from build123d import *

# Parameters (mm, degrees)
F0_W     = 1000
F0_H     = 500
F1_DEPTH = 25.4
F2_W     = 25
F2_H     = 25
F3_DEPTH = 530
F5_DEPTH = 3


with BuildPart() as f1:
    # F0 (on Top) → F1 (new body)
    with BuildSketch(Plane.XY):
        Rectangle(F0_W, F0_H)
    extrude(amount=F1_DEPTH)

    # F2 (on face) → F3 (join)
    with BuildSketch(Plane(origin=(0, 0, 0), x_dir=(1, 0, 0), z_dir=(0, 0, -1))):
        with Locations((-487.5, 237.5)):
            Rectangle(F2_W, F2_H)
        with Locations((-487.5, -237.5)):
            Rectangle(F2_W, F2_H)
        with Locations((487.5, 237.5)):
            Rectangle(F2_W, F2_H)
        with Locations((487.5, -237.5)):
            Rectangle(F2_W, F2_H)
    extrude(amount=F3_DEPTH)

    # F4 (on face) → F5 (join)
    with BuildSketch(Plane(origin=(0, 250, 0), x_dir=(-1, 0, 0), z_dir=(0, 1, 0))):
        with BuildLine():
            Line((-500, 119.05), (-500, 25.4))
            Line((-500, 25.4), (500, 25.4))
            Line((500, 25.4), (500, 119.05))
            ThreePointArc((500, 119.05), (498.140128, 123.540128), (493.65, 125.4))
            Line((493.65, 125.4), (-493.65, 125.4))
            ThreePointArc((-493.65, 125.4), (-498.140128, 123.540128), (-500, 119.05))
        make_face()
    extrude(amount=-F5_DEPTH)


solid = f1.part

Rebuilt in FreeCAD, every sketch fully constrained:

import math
import FreeCAD as App
import Part
import Sketcher

doc = App.newDocument("Part")
body = doc.addObject("PartDesign::Body", "Body")

# Sketch on XY plane
sketch1 = body.newObject("Sketcher::SketchObject", "Sketch")
sketch1.AttachmentSupport = (doc.getObject("XY_Plane"), [""])
sketch1.MapMode = "FlatFace"
sketch1.addGeometry([
    Part.LineSegment(App.Vector(-500, 250, 0), App.Vector(-500, -250, 0)),
    Part.LineSegment(App.Vector(-500, -250, 0), App.Vector(500, -250, 0)),
    Part.LineSegment(App.Vector(500, -250, 0), App.Vector(500, 250, 0)),
    Part.LineSegment(App.Vector(500, 250, 0), App.Vector(-500, 250, 0)),
], False)
sketch1.addConstraint([
    Sketcher.Constraint("Coincident", 0, 2, 1, 1),
    Sketcher.Constraint("Coincident", 1, 2, 2, 1),
    Sketcher.Constraint("Coincident", 2, 2, 3, 1),
    Sketcher.Constraint("Coincident", 3, 2, 0, 1),
    Sketcher.Constraint("Vertical", 0),
    Sketcher.Constraint("Horizontal", 1),
    Sketcher.Constraint("Vertical", 2),
    Sketcher.Constraint("Horizontal", 3),
    Sketcher.Constraint("Symmetric", 0, 2, 2, 2, -1, 1),
    Sketcher.Constraint("DistanceX", 1, 1, 1, 2, 1000.0),
    Sketcher.Constraint("DistanceY", 0, 2, 0, 1, 500.0),
])
pad1 = body.newObject("PartDesign::Pad", "Pad")
pad1.Profile = sketch1
pad1.Length = 25.4

# Sketch on XY plane
sketch2 = body.newObject("Sketcher::SketchObject", "Sketch001")
sketch2.AttachmentSupport = (doc.getObject("XY_Plane"), [""])
sketch2.MapMode = "FlatFace"
sketch2.addGeometry([
    Part.LineSegment(App.Vector(-500, -250, 0), App.Vector(-500, -225, 0)),  # 0
    Part.LineSegment(App.Vector(-500, -225, 0), App.Vector(-475, -225, 0)),  # 1
    Part.LineSegment(App.Vector(-475, -225, 0), App.Vector(-475, -250, 0)),  # 2
    Part.LineSegment(App.Vector(-475, -250, 0), App.Vector(-500, -250, 0)),  # 3
    Part.LineSegment(App.Vector(-500, 225, 0), App.Vector(-500, 250, 0)),  # 4
    Part.LineSegment(App.Vector(-500, 250, 0), App.Vector(-475, 250, 0)),  # 5
    Part.LineSegment(App.Vector(-475, 250, 0), App.Vector(-475, 225, 0)),  # 6
    Part.LineSegment(App.Vector(-475, 225, 0), App.Vector(-500, 225, 0)),  # 7
    Part.LineSegment(App.Vector(475, -250, 0), App.Vector(475, -225, 0)),  # 8
    Part.LineSegment(App.Vector(475, -225, 0), App.Vector(500, -225, 0)),  # 9
    Part.LineSegment(App.Vector(500, -225, 0), App.Vector(500, -250, 0)),  # 10
    Part.LineSegment(App.Vector(500, -250, 0), App.Vector(475, -250, 0)),  # 11
    Part.LineSegment(App.Vector(475, 225, 0), App.Vector(475, 250, 0)),  # 12
    Part.LineSegment(App.Vector(475, 250, 0), App.Vector(500, 250, 0)),  # 13
    Part.LineSegment(App.Vector(500, 250, 0), App.Vector(500, 225, 0)),  # 14
    Part.LineSegment(App.Vector(500, 225, 0), App.Vector(475, 225, 0)),  # 15
], False)
sketch2.addConstraint([
    Sketcher.Constraint("Coincident", 0, 2, 1, 1),
    Sketcher.Constraint("Coincident", 1, 2, 2, 1),
    Sketcher.Constraint("Coincident", 2, 2, 3, 1),
    Sketcher.Constraint("Coincident", 3, 2, 0, 1),
    Sketcher.Constraint("Coincident", 4, 2, 5, 1),
    Sketcher.Constraint("Coincident", 5, 2, 6, 1),
    Sketcher.Constraint("Coincident", 6, 2, 7, 1),
    Sketcher.Constraint("Coincident", 7, 2, 4, 1),
    Sketcher.Constraint("Coincident", 8, 2, 9, 1),
    Sketcher.Constraint("Coincident", 9, 2, 10, 1),
    Sketcher.Constraint("Coincident", 10, 2, 11, 1),
    Sketcher.Constraint("Coincident", 11, 2, 8, 1),
    Sketcher.Constraint("Coincident", 12, 2, 13, 1),
    Sketcher.Constraint("Coincident", 13, 2, 14, 1),
    Sketcher.Constraint("Coincident", 14, 2, 15, 1),
    Sketcher.Constraint("Coincident", 15, 2, 12, 1),
    Sketcher.Constraint("Vertical", 0),
    Sketcher.Constraint("Horizontal", 1),
    Sketcher.Constraint("Vertical", 2),
    Sketcher.Constraint("Horizontal", 3),
    Sketcher.Constraint("Vertical", 4),
    Sketcher.Constraint("Horizontal", 5),
    Sketcher.Constraint("Vertical", 6),
    Sketcher.Constraint("Horizontal", 7),
    Sketcher.Constraint("Vertical", 8),
    Sketcher.Constraint("Horizontal", 9),
    Sketcher.Constraint("Vertical", 10),
    Sketcher.Constraint("Horizontal", 11),
    Sketcher.Constraint("Vertical", 12),
    Sketcher.Constraint("Horizontal", 13),
    Sketcher.Constraint("Vertical", 14),
    Sketcher.Constraint("Horizontal", 15),
    Sketcher.Constraint("Symmetric", 6, 2, 8, 2, -1, 1),
    Sketcher.Constraint("Symmetric", 4, 2, 10, 2, -1, 1),
    Sketcher.Constraint("Symmetric", 2, 2, 12, 2, -1, 1),
    Sketcher.Constraint("Symmetric", 0, 2, 14, 2, -1, 1),
    Sketcher.Constraint("Symmetric", 1, 2, 8, 2, -2),
    Sketcher.Constraint("Symmetric", 3, 2, 10, 2, -2),
    Sketcher.Constraint("Equal", 15, 0),
    Sketcher.Constraint("DistanceX", 1, 1, 1, 2, 25.0),
    Sketcher.Constraint("DistanceX", 0, 2, -1, 1, 500.0),
    Sketcher.Constraint("DistanceY", 0, 2, -1, 1, 225.0),
])
pad2 = body.newObject("PartDesign::Pad", "Pad001")
pad2.Profile = sketch2
pad2.Length = 530
pad2.Reversed = True

# Sketch on XZ plane
sketch3 = body.newObject("Sketcher::SketchObject", "Sketch002")
sketch3.AttachmentSupport = (doc.getObject("XZ_Plane"), [""])
sketch3.MapMode = "FlatFace"
sketch3.AttachmentOffset = App.Placement(App.Vector(0, 0, -250), App.Rotation())
sketch3.addGeometry([
    Part.LineSegment(App.Vector(500, 119.05, 0), App.Vector(500, 25.4, 0)),  # 0
    Part.LineSegment(App.Vector(500, 25.4, 0), App.Vector(-500, 25.4, 0)),  # 1
    Part.LineSegment(App.Vector(-500, 25.4, 0), App.Vector(-500, 119.05, 0)),  # 2
    Part.ArcOfCircle(Part.Circle(App.Vector(-493.65, 119.05, 0), App.Vector(0, 0, 1), 6.35), math.radians(90.000002), math.radians(179.999998)),  # 3
    Part.LineSegment(App.Vector(-493.65, 125.4, 0), App.Vector(493.65, 125.4, 0)),  # 4
    Part.ArcOfCircle(Part.Circle(App.Vector(493.65, 119.05, 0), App.Vector(0, 0, 1), 6.35), math.radians(0.000002), math.radians(89.999998)),  # 5
], False)
sketch3.addConstraint([
    Sketcher.Constraint("Coincident", 0, 2, 1, 1),
    Sketcher.Constraint("Coincident", 1, 2, 2, 1),
    Sketcher.Constraint("Tangent", 2, 2, 3, 2),
    Sketcher.Constraint("Tangent", 3, 1, 4, 1),
    Sketcher.Constraint("Tangent", 4, 2, 5, 2),
    Sketcher.Constraint("Tangent", 5, 1, 0, 1),
    Sketcher.Constraint("Vertical", 0),
    Sketcher.Constraint("Horizontal", 1),
    Sketcher.Constraint("Vertical", 2),
    Sketcher.Constraint("Horizontal", 4),
    Sketcher.Constraint("Equal", 3, 5),
    Sketcher.Constraint("DistanceX", 1, 2, 1, 1, 1000.0),
    Sketcher.Constraint("Radius", 3, 6.35),
    Sketcher.Constraint("DistanceX", -1, 1, 0, 2, 500.0),
    Sketcher.Constraint("DistanceY", 1, 2, 3, 1, 100.0),
    Sketcher.Constraint("DistanceY", -1, 1, 0, 2, 25.4),
])
pad3 = body.newObject("PartDesign::Pad", "Pad002")
pad3.Profile = sketch3
pad3.Length = 3

doc.recompute()
